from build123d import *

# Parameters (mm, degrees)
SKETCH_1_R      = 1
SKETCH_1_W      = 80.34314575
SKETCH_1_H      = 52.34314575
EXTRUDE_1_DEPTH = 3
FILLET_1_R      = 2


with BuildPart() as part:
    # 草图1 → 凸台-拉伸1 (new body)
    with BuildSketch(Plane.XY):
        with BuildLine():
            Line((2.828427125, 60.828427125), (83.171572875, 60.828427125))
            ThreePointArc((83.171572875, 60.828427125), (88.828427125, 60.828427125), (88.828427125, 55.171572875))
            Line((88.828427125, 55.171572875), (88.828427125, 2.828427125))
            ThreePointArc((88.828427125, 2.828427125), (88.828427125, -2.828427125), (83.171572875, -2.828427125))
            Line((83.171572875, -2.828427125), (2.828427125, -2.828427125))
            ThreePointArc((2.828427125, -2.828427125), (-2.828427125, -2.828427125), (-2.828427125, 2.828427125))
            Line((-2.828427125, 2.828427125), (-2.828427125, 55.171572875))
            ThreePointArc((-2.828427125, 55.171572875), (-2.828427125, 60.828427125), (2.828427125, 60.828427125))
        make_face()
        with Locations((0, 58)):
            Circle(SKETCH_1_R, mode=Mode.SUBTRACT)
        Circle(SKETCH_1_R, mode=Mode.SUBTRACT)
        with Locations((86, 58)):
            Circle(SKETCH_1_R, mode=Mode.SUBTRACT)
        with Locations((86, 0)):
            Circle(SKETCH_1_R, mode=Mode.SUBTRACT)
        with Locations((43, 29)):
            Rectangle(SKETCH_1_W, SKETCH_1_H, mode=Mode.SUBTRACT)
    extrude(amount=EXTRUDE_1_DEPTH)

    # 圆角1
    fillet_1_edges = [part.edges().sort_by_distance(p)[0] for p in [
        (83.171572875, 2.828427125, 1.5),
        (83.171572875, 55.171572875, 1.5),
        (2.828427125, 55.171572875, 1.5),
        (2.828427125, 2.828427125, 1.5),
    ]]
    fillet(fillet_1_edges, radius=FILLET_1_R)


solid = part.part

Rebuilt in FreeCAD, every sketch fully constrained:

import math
import FreeCAD as App
import Part
import Sketcher
from FreeCAD import Vector
Q = App.Units.Quantity


def edges_at(feature, points):
    """Names of the edges that pass closest to the given points."""
    edges = feature.Shape.Edges
    near = lambda p: min(range(len(edges)), key=lambda i: edges[i].distToShape(Part.Vertex(*p))[0])
    return sorted({f"Edge{near(p) + 1}" for p in points})


def add_polygon(sketch, points):
    """Adds a closed chain of lines whose ends are joined by coincident constraints."""
    first, n = sketch.GeometryCount, len(points)
    for a, b in zip(points, points[1:] + points[:1]):
        sketch.addGeometry(Part.LineSegment(App.Vector(*a, 0), App.Vector(*b, 0)), False)
    for i in range(n):
        sketch.addConstraint(Sketcher.Constraint("Coincident", first + i, 2, first + (i + 1) % n, 1))

doc = App.newDocument("Part")
body = doc.addObject("PartDesign::Body", "Body")

# Sketch on XY plane
sketch1 = body.newObject("Sketcher::SketchObject", "Sketch")
sketch1.AttachmentSupport = (doc.getObject("XY_Plane"), [""])
sketch1.MapMode = "FlatFace"
sketch1.addGeometry(Part.LineSegment(Vector(83.171573, 60.828427, 0), Vector(2.828427, 60.828427, 0)), False)  # 0
sketch1.addGeometry(Part.ArcOfCircle(Part.Circle(Vector(0, 58, 0), Vector(0, 0, 1), 4), math.radians(45), math.radians(225)), False)  # 1
sketch1.addGeometry(Part.LineSegment(Vector(-2.828427, 55.171573, 0), Vector(-2.828427, 2.828427, 0)), False)  # 2
sketch1.addGeometry(Part.ArcOfCircle(Part.Circle(Vector(0, 0, 0), Vector(0, 0, 1), 4), math.radians(135), math.radians(315)), False)  # 3
sketch1.addGeometry(Part.LineSegment(Vector(2.828427, -2.828427, 0), Vector(83.171573, -2.828427, 0)), False)  # 4
sketch1.addGeometry(Part.ArcOfCircle(Part.Circle(Vector(86, 0, 0), Vector(0, 0, 1), 4), math.radians(-135), math.radians(45)), False)  # 5
sketch1.addGeometry(Part.LineSegment(Vector(88.828427, 2.828427, 0), Vector(88.828427, 55.171573, 0)), False)  # 6
sketch1.addGeometry(Part.ArcOfCircle(Part.Circle(Vector(86, 58, 0), Vector(0, 0, 1), 4), math.radians(-45), math.radians(135)), False)  # 7
sketch1.addGeometry(Part.Circle(Vector(86, 0, 0), Vector(0, 0, 1), 1), False)  # 8
sketch1.addGeometry(Part.Circle(Vector(0, 0, 0), Vector(0, 0, 1), 1), False)  # 9
sketch1.addGeometry(Part.Circle(Vector(86, 58, 0), Vector(0, 0, 1), 1), False)  # 10
add_polygon(sketch1, [(2.828427, 2.828427), (2.828427, 55.171573), (83.171573, 55.171573), (83.171573, 2.828427)])  # lines 11-14
sketch1.addGeometry(Part.Circle(Vector(0, 58, 0), Vector(0, 0, 1), 1), False)  # 15
sketch1.addConstraint(Sketcher.Constraint("Coincident", 0, 2, 1, 1))
sketch1.addConstraint(Sketcher.Constraint("Coincident", 1, 2, 2, 1))
sketch1.addConstraint(Sketcher.Constraint("Coincident", 2, 2, 3, 1))
sketch1.addConstraint(Sketcher.Constraint("Coincident", 3, 2, 4, 1))
sketch1.addConstraint(Sketcher.Constraint("Coincident", 4, 2, 5, 1))
sketch1.addConstraint(Sketcher.Constraint("Coincident", 5, 2, 6, 1))
sketch1.addConstraint(Sketcher.Constraint("Coincident", 6, 2, 7, 1))
sketch1.addConstraint(Sketcher.Constraint("Coincident", 7, 2, 0, 1))
sketch1.addConstraint(Sketcher.Constraint("Horizontal", 0))
sketch1.addConstraint(Sketcher.Constraint("Vertical", 2))
sketch1.addConstraint(Sketcher.Constraint("Horizontal", 4))
sketch1.addConstraint(Sketcher.Constraint("Vertical", 6))
sketch1.addConstraint(Sketcher.Constraint("Vertical", 11))
sketch1.addConstraint(Sketcher.Constraint("Horizontal", 12))
sketch1.addConstraint(Sketcher.Constraint("Vertical", 13))
sketch1.addConstraint(Sketcher.Constraint("Horizontal", 14))
sketch1.addConstraint(Sketcher.Constraint("Coincident", 3, 3, -1, 1))
sketch1.addConstraint(Sketcher.Constraint("Coincident", 9, 3, -1, 1))
sketch1.addConstraint(Sketcher.Constraint("Coincident", 8, 3, 5, 3))
sketch1.addConstraint(Sketcher.Constraint("Coincident", 10, 3, 7, 3))
sketch1.addConstraint(Sketcher.Constraint("Coincident", 15, 3, 1, 3))
sketch1.addConstraint(Sketcher.Constraint("Equal", 1, 3))
sketch1.addConstraint(Sketcher.Constraint("Equal", 3, 5))
sketch1.addConstraint(Sketcher.Constraint("Equal", 5, 7))
sketch1.addConstraint(Sketcher.Constraint("Equal", 8, 9))
sketch1.addConstraint(Sketcher.Constraint("Equal", 9, 10))
sketch1.addConstraint(Sketcher.Constraint("Equal", 10, 15))
sketch1.addConstraint(Sketcher.Constraint("Symmetric", 1, 2, 11, 2, -2))
sketch1.addConstraint(Sketcher.Constraint("Symmetric", 4, 2, 13, 2, -1))
sketch1.addConstraint(Sketcher.Constraint("PointOnObject", 1, 3, -2))
sketch1.addConstraint(Sketcher.Constraint("PointOnObject", 5, 3, -1))
sketch1.addConstraint(Sketcher.Constraint("Horizontal", 1, 3, 7, 3))
sketch1.addConstraint(Sketcher.Constraint("Horizontal", 2, 2, 5, 2))
sketch1.addConstraint(Sketcher.Constraint("Horizontal", 1, 2, 6, 2))
sketch1.addConstraint(Sketcher.Constraint("Horizontal", 5, 2, 13, 2))
sketch1.addConstraint(Sketcher.Constraint("Vertical", 0, 2, 3, 2))
sketch1.addConstraint(Sketcher.Constraint("Diameter", 8, Q("2 mm")))
sketch1.addConstraint(Sketcher.Constraint("Radius", 1, Q("4 mm")))
sketch1.addConstraint(Sketcher.Constraint("DistanceY", -1, 1, 1, 3, Q("58 mm")))
sketch1.addConstraint(Sketcher.Constraint("DistanceX", -1, 1, 5, 3, Q("86 mm")))
sketch1.addConstraint(Sketcher.Constraint("DistanceX", 0, 2, 0, 1, Q("80.343146 mm")))
pad1 = body.newObject("PartDesign::Pad", "Pad")
pad1.Profile = sketch1
pad1.Length = 3
doc.recompute()

fillet = body.newObject("PartDesign::Fillet", "Fillet")
fillet.Base = (pad1, edges_at(pad1, [
    (83.172, 2.828, 1.5),
    (83.172, 55.172, 1.5),
    (2.828, 55.172, 1.5),
    (2.828, 2.828, 1.5),
]))
fillet.Radius = 2

doc.recompute()
